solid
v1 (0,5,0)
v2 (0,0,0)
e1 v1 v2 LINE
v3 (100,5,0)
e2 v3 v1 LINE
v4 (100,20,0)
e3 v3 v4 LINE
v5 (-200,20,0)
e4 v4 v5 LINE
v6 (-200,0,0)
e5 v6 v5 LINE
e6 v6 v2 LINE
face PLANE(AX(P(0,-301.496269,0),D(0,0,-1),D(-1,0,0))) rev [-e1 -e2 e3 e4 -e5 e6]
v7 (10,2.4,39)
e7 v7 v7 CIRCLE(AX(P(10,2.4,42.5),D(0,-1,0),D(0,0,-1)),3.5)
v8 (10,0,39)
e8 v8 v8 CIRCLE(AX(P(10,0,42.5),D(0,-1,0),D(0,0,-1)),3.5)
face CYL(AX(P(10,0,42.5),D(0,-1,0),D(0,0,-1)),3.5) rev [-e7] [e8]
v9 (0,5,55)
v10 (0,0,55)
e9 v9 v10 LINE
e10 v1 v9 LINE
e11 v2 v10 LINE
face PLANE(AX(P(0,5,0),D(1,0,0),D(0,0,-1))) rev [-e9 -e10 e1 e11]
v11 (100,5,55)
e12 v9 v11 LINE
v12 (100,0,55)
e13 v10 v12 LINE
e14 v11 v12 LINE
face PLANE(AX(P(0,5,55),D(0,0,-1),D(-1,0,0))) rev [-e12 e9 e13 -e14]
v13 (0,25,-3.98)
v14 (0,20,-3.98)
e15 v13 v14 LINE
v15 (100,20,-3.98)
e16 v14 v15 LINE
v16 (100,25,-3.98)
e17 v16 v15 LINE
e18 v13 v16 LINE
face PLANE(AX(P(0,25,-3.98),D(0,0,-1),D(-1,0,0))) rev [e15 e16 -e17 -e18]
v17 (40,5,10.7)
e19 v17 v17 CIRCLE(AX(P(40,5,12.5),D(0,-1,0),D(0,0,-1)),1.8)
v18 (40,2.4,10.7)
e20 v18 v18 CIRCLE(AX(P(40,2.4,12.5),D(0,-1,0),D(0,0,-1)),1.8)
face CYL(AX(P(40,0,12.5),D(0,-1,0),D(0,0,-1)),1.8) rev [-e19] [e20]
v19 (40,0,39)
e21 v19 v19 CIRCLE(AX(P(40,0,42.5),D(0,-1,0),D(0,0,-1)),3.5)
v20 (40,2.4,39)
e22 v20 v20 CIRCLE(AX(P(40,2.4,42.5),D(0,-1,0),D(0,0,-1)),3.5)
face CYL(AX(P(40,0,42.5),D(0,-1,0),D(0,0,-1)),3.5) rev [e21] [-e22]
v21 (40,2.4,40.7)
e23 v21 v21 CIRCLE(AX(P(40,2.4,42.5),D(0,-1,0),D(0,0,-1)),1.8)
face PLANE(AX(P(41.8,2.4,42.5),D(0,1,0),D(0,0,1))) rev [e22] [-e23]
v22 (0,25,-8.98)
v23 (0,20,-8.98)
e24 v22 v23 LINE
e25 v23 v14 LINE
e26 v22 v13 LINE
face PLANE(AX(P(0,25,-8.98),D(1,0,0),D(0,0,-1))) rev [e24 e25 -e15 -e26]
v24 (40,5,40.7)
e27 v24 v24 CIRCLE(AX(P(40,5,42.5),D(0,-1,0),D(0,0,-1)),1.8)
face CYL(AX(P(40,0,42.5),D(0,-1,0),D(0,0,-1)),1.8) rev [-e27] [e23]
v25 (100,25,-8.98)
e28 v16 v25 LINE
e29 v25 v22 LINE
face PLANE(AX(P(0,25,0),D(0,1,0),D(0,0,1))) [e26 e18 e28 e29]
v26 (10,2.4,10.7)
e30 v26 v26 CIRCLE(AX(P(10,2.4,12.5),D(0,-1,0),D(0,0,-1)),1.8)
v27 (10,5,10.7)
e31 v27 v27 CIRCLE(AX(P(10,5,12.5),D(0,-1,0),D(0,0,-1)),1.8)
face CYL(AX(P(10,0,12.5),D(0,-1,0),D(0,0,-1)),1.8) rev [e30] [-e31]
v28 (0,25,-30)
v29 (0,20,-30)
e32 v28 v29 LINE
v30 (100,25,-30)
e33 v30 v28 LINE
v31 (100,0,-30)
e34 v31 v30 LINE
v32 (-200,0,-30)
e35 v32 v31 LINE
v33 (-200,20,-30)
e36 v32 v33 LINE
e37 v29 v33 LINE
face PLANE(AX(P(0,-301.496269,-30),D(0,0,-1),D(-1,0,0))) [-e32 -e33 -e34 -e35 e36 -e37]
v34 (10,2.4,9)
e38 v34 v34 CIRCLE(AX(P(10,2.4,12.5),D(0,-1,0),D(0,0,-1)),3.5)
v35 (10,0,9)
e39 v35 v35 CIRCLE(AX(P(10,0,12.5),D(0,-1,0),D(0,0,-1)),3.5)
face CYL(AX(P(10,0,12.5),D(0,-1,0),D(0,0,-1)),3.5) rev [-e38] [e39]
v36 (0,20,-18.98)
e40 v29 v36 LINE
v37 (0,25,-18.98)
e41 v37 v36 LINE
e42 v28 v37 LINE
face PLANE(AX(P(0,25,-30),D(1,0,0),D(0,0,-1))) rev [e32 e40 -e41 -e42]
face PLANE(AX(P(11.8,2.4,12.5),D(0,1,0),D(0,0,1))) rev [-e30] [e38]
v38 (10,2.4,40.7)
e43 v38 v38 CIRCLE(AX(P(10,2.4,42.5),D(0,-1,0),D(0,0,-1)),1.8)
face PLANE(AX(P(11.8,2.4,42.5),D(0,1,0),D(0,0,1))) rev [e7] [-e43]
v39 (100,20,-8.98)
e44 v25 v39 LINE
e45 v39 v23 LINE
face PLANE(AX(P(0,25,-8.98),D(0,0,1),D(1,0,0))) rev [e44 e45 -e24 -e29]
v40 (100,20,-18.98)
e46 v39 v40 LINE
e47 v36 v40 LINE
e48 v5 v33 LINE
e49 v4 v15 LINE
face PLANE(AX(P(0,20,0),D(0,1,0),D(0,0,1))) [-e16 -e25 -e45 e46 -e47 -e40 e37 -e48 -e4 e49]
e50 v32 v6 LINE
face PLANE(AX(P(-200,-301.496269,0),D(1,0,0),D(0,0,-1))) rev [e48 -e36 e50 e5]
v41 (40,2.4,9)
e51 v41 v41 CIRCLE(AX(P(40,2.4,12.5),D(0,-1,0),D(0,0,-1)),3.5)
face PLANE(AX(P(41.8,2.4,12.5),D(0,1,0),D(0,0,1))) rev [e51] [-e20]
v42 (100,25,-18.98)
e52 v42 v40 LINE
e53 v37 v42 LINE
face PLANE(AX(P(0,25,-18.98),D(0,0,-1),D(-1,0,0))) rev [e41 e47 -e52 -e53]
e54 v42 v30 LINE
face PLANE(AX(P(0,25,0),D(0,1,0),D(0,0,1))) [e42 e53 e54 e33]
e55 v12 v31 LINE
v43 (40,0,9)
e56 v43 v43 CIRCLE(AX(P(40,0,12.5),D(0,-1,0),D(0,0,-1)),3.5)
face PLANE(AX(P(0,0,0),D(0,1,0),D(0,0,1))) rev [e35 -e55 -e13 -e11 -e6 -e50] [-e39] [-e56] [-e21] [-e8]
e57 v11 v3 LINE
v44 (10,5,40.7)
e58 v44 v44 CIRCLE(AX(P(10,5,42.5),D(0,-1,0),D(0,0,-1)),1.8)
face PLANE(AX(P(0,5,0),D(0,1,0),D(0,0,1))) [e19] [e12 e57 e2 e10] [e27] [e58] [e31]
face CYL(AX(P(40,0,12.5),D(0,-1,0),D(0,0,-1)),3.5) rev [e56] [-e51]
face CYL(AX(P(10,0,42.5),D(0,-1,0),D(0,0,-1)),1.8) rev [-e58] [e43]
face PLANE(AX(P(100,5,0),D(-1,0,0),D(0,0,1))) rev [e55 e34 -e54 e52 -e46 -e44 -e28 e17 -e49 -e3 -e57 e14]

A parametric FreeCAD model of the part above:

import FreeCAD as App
import Part
import Sketcher
from FreeCAD import Vector


def add_polygon(sketch, points):
    """Adds a closed chain of lines whose ends are joined by coincident constraints."""
    first, n = sketch.GeometryCount, len(points)
    for a, b in zip(points, points[1:] + points[:1]):
        sketch.addGeometry(Part.LineSegment(App.Vector(*a, 0), App.Vector(*b, 0)), False)
    for i in range(n):
        sketch.addConstraint(Sketcher.Constraint("Coincident", first + i, 2, first + (i + 1) % n, 1))

doc = App.newDocument("Part")
body = doc.addObject("PartDesign::Body", "Body")

# Sketch on XZ plane
sketch1 = doc.addObject("Sketcher::SketchObject", "Sketch")
body.addObject(sketch1)
sketch1.AttachmentSupport = (doc.XZ_Plane, [""])
sketch1.MapMode = "FlatFace"
add_polygon(sketch1, [(0, 0), (0, 55), (100, 55), (100, 0)])  # lines 0-3
sketch1.addConstraint([
    Sketcher.Constraint("Vertical", 0),
    Sketcher.Constraint("Horizontal", 1),
    Sketcher.Constraint("Vertical", 2),
    Sketcher.Constraint("Horizontal", 3),
    Sketcher.Constraint("Coincident", 3, 2, -1, 1),
    Sketcher.Constraint("DistanceX", 1, 1, 1, 2, 100.0),
    Sketcher.Constraint("DistanceY", 0, 1, 0, 2, 55.0),
])
pad1 = doc.addObject("PartDesign::Pad", "Pad")
body.addObject(pad1)
pad1.Profile = sketch1
pad1.Length = 5
pad1.Reversed = True

# Sketch on XZ plane
sketch2 = doc.addObject("Sketcher::SketchObject", "Sketch001")
body.addObject(sketch2)
sketch2.AttachmentSupport = (doc.XZ_Plane, [""])
sketch2.MapMode = "FlatFace"
sketch2.addGeometry(Part.Circle(Vector(10, 12.5, 0), Vector(0, 0, 1), 1.8), False)
sketch2.addConstraint([
    Sketcher.Constraint("Diameter", 0, 3.6),
    Sketcher.Constraint("DistanceX", -1, 1, 0, 3, 10.0),
    Sketcher.Constraint("DistanceY", -1, 1, 0, 3, 12.5),
])
doc.recompute()
hole = doc.addObject("PartDesign::Hole", "Hole")
body.addObject(hole)
hole.Profile = sketch2
hole.ThreadType = "None"
hole.Diameter = 3.6
hole.DepthType = "ThroughAll"
hole.HoleCutType = "Counterbore"
hole.HoleCutDiameter = 7
hole.HoleCutDepth = 2.4
doc.recompute()

datumplane = doc.addObject("PartDesign::Plane", "DatumPlane")
body.addObject(datumplane)
datumplane.AttachmentSupport = (doc.XY_Plane, [""])
datumplane.MapMode = "FlatFace"
datumplane.AttachmentOffset = App.Placement(Vector(0, 0, 27.5), App.Rotation())
mirrored = doc.addObject("PartDesign::Mirrored", "Mirrored")
body.addObject(mirrored)
mirrored.Originals = [hole]
mirrored.MirrorPlane = (datumplane, [""])
body.Tip = mirrored
doc.recompute()

datumplane2 = doc.addObject("PartDesign::Plane", "DatumPlane001")
body.addObject(datumplane2)
datumplane2.AttachmentSupport = (doc.YZ_Plane, [""])
datumplane2.MapMode = "FlatFace"
datumplane2.AttachmentOffset = App.Placement(Vector(0, 0, 25), App.Rotation())
mirrored2 = doc.addObject("PartDesign::Mirrored", "Mirrored001")
body.addObject(mirrored2)
mirrored2.Originals = [hole]
mirrored2.MirrorPlane = (datumplane2, [""])
body.Tip = mirrored2

# Sketch on XZ plane
sketch3 = doc.addObject("Sketcher::SketchObject", "Sketch002")
body.addObject(sketch3)
sketch3.AttachmentSupport = (doc.XZ_Plane, [""])
sketch3.MapMode = "FlatFace"
sketch3.addGeometry(Part.Circle(Vector(40, 42.5, 0), Vector(0, 0, 1), 1.8), False)
sketch3.addConstraint([
    Sketcher.Constraint("Diameter", 0, 3.6),
    Sketcher.Constraint("DistanceX", -1, 1, 0, 3, 40.0),
    Sketcher.Constraint("DistanceY", -1, 1, 0, 3, 42.5),
])
doc.recompute()
hole2 = doc.addObject("PartDesign::Hole", "Hole001")
body.addObject(hole2)
hole2.Profile = sketch3
hole2.ThreadType = "None"
hole2.Diameter = 3.6
hole2.DepthType = "ThroughAll"
hole2.HoleCutType = "Counterbore"
hole2.HoleCutDiameter = 7
hole2.HoleCutDepth = 2.4

# Sketch on XZ plane
sketch4 = doc.addObject("Sketcher::SketchObject", "Sketch003")
body.addObject(sketch4)
sketch4.AttachmentSupport = (doc.XZ_Plane, [""])
sketch4.MapMode = "FlatFace"
sketch4.AttachmentOffset = App.Placement(Vector(0, 0, -5), App.Rotation())
add_polygon(sketch4, [(-200, 0), (100, 0), (100, -30), (-200, -30)])  # lines 0-3
sketch4.addConstraint([
    Sketcher.Constraint("Horizontal", 0),
    Sketcher.Constraint("Vertical", 1),
    Sketcher.Constraint("Horizontal", 2),
    Sketcher.Constraint("Vertical", 3),
    Sketcher.Constraint("PointOnObject", 0, 2, -1),
    Sketcher.Constraint("DistanceX", 0, 1, 0, 2, 300.0),
    Sketcher.Constraint("DistanceY", 1, 2, 1, 1, 30.0),
    Sketcher.Constraint("DistanceX", -1, 1, 0, 2, 100.0),
])
pad2 = doc.addObject("PartDesign::Pad", "Pad001")
body.addObject(pad2)
pad2.Profile = sketch4
pad2.Type = "TwoLengths"
pad2.Length = 15
pad2.Length2 = 5
pad2.Reversed = True

# Sketch on XZ plane
sketch5 = doc.addObject("Sketcher::SketchObject", "Sketch004")
body.addObject(sketch5)
sketch5.AttachmentSupport = (doc.XZ_Plane, [""])
sketch5.MapMode = "FlatFace"
sketch5.AttachmentOffset = App.Placement(Vector(0, 0, -20), App.Rotation())
add_polygon(sketch5, [(0, -30), (0, -19), (100, -19), (100, -30)])  # lines 0-3
add_polygon(sketch5, [(0, -9), (0, -4), (100, -4), (100, -9)])  # lines 4-7
sketch5.addConstraint([
    Sketcher.Constraint("Vertical", 0),
    Sketcher.Constraint("Horizontal", 1),
    Sketcher.Constraint("Vertical", 2),
    Sketcher.Constraint("Horizontal", 3),
    Sketcher.Constraint("Vertical", 4),
    Sketcher.Constraint("Horizontal", 5),
    Sketcher.Constraint("Vertical", 6),
    Sketcher.Constraint("Horizontal", 7),
    Sketcher.Constraint("PointOnObject", 0, 2, -2),
    Sketcher.Constraint("PointOnObject", 4, 2, -2),
    Sketcher.Constraint("Vertical", 2, 2, 5, 2),
    Sketcher.Constraint("DistanceX", 1, 1, 1, 2, 100.0),
    Sketcher.Constraint("DistanceY", 4, 1, 4, 2, 5.0),
    Sketcher.Constraint("DistanceY", 2, 2, -1, 1, 30.0),
    Sketcher.Constraint("DistanceY", 0, 2, 4, 2, 15.0),
    Sketcher.Constraint("DistanceY", 0, 1, 0, 2, 11.02),
])
pad3 = doc.addObject("PartDesign::Pad", "Pad002")
body.addObject(pad3)
pad3.Profile = sketch5
pad3.Length = 5
pad3.Reversed = True

doc.recompute()
